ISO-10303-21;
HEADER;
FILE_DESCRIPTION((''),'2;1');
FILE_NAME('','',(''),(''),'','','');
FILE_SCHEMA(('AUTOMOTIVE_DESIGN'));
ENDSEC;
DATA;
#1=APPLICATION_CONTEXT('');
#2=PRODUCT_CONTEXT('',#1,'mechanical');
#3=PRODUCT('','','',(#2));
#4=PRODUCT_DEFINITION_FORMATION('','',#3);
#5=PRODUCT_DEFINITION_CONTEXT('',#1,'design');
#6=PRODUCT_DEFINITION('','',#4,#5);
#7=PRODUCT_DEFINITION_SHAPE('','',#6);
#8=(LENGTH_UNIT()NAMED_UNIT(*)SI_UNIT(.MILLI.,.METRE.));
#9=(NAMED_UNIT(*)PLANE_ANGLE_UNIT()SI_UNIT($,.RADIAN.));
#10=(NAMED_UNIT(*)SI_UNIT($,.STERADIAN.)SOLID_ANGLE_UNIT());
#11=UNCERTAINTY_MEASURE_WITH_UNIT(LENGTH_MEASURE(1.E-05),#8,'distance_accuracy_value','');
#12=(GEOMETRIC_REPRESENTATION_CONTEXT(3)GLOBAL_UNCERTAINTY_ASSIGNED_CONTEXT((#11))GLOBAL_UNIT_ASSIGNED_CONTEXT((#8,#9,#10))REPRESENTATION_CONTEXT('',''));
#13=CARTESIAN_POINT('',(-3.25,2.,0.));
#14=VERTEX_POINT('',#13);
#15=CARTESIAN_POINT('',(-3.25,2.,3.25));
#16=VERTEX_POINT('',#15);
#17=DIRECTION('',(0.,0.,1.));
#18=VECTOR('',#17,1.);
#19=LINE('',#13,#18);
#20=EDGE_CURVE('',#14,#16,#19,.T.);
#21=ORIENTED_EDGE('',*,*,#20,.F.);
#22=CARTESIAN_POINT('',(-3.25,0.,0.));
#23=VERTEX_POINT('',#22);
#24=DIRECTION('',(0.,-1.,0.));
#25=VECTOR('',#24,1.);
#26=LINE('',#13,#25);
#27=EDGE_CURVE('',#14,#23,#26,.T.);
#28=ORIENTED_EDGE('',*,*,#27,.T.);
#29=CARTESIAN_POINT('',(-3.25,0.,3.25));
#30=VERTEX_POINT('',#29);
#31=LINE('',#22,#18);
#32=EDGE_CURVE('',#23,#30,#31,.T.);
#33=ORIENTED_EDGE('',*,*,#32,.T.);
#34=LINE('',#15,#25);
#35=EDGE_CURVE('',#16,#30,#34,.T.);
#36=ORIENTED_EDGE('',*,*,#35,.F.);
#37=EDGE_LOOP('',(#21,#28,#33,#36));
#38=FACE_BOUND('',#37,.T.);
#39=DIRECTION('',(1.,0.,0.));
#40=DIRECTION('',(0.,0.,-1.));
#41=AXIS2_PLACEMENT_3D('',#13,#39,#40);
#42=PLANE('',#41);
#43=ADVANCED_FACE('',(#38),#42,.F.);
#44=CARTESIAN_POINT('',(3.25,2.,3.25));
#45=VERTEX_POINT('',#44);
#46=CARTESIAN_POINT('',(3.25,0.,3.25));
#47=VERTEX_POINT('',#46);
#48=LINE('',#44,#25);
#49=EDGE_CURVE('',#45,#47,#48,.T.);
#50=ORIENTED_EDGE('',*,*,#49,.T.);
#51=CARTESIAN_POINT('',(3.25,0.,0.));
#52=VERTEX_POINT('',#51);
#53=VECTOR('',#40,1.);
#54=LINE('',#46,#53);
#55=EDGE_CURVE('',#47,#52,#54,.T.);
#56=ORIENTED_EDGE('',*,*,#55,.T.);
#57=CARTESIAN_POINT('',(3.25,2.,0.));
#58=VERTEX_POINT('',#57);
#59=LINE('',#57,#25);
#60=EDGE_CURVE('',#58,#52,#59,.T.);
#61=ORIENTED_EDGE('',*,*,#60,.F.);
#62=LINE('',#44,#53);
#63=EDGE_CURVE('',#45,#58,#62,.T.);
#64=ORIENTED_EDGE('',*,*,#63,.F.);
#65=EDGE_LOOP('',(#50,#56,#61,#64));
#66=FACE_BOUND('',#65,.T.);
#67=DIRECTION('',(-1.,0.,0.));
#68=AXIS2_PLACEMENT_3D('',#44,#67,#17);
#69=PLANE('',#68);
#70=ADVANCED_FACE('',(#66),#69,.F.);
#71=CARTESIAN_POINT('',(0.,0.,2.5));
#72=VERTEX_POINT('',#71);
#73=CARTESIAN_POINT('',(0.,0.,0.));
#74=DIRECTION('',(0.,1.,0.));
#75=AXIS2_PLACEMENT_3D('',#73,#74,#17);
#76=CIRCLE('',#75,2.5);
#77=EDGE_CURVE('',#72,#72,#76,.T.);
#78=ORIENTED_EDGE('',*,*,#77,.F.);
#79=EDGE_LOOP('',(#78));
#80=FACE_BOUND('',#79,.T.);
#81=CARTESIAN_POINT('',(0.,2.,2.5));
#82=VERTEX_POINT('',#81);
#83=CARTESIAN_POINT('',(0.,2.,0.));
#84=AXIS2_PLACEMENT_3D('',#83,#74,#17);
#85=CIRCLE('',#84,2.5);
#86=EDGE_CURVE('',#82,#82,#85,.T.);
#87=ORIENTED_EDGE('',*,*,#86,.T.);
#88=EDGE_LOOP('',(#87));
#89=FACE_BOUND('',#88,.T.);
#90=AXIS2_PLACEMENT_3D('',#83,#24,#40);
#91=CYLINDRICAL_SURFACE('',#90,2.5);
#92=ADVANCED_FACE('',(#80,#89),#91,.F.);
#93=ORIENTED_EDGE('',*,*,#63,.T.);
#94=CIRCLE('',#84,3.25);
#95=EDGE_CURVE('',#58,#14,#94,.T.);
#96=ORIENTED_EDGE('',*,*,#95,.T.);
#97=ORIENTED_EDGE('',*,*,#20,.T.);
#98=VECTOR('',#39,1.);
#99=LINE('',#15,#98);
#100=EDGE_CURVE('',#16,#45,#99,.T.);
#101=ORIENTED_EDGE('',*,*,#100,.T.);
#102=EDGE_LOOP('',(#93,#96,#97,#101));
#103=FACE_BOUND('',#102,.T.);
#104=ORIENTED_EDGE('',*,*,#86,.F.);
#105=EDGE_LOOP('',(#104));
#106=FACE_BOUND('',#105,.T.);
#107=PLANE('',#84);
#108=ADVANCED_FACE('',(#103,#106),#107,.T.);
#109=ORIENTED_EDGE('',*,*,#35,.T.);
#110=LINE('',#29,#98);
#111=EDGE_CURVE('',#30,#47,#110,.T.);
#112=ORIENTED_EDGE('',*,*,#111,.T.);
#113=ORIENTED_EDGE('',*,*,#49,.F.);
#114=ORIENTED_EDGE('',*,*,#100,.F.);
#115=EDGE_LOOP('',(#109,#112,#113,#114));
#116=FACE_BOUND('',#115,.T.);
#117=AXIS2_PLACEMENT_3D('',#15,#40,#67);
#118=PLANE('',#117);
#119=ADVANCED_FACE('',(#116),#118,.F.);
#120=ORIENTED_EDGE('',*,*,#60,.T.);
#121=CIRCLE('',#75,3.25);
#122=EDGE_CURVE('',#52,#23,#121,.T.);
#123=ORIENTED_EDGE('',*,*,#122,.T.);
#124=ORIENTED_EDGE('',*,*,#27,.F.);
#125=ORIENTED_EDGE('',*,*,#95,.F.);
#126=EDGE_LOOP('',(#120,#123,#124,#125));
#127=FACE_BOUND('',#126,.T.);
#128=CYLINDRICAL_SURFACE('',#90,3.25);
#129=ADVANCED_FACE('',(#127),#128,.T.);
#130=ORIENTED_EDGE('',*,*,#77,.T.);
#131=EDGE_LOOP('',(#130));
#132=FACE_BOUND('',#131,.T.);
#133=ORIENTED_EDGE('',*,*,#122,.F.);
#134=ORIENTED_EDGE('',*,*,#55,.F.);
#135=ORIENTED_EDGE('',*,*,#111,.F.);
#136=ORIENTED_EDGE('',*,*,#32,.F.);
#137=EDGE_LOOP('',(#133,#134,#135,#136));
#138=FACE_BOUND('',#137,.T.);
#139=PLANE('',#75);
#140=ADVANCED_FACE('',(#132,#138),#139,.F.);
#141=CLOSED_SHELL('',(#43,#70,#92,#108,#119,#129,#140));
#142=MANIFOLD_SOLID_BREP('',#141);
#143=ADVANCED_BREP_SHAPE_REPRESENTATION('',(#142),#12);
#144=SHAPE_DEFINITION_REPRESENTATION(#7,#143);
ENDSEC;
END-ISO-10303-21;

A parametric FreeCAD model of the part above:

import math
import FreeCAD as App
import Part
import Sketcher
from FreeCAD import Vector
Q = App.Units.Quantity

doc = App.newDocument("Part")
body = doc.addObject("PartDesign::Body", "Body")

sketch1 = body.newObject("Sketcher::SketchObject", "Sketch")
sketch1.AttachmentSupport = (doc.getObject("XZ_Plane"), [""])
sketch1.MapMode = "FlatFace"
sketch1.addGeometry(Part.LineSegment(Vector(-3.2, 0, 0), Vector(-3.2, 3.2, 0)), False)
sketch1.addGeometry(Part.LineSegment(Vector(-3.2, 3.2, 0), Vector(3.2, 3.2, 0)), False)
sketch1.addGeometry(Part.LineSegment(Vector(3.2, 3.2, 0), Vector(3.2, 0, 0)), False)
sketch1.addGeometry(Part.ArcOfCircle(Part.Circle(Vector(0, 0, 0), Vector(0, 0, 1), 3.2), math.radians(180), math.radians(360)), False)
sketch1.addGeometry(Part.Circle(Vector(0, 0, 0), Vector(0, 0, 1), 2.5), False)
sketch1.addConstraint(Sketcher.Constraint("Coincident", 0, 2, 1, 1))
sketch1.addConstraint(Sketcher.Constraint("Coincident", 1, 2, 2, 1))
sketch1.addConstraint(Sketcher.Constraint("Tangent", 2, 2, 3, 2))
sketch1.addConstraint(Sketcher.Constraint("Tangent", 3, 1, 0, 1))
sketch1.addConstraint(Sketcher.Constraint("Vertical", 0))
sketch1.addConstraint(Sketcher.Constraint("Horizontal", 1))
sketch1.addConstraint(Sketcher.Constraint("Vertical", 2))
sketch1.addConstraint(Sketcher.Constraint("Coincident", 3, 3, -1, 1))
sketch1.addConstraint(Sketcher.Constraint("Coincident", 4, 3, -1, 1))
sketch1.addConstraint(Sketcher.Constraint("Diameter", 4, Q("5 mm")))
sketch1.addConstraint(Sketcher.Constraint("Radius", 3, Q("3.25 mm")))
sketch1.addConstraint(Sketcher.Constraint("DistanceY", 0, 1, 0, 2, Q("3.25 mm")))
pad1 = body.newObject("PartDesign::Pad", "Pad")
pad1.Profile = sketch1
pad1.Length = 2
pad1.Reversed = True

doc.recompute()
